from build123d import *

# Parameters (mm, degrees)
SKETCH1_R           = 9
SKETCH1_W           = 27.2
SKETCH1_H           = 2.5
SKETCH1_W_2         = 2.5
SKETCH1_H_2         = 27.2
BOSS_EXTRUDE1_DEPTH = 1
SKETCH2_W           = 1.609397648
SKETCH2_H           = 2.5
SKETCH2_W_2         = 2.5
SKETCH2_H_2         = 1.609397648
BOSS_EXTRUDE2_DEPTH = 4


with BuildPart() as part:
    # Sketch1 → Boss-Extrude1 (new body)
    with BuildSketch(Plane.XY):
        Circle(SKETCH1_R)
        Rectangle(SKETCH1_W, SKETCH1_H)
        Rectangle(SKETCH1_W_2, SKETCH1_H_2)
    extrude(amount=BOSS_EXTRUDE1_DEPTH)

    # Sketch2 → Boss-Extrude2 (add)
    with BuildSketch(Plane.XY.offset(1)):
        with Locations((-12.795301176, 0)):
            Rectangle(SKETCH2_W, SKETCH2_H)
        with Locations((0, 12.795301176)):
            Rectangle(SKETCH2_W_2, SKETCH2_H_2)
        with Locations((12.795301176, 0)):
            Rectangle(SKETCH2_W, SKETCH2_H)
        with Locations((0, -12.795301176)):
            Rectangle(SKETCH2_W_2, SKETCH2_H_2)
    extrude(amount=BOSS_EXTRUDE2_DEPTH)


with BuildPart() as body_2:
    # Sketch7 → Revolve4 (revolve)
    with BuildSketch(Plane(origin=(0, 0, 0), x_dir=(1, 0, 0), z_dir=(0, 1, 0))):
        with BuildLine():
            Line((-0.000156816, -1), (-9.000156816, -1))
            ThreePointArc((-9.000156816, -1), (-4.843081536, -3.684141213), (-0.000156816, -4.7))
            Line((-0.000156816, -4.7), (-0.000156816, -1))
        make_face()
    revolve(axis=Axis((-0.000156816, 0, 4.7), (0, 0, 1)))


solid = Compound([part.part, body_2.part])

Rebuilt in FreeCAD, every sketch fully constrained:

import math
import FreeCAD as App
import Part
import Sketcher
from FreeCAD import Vector
Q = App.Units.Quantity


def add_polygon(sketch, points):
    """Adds a closed chain of lines whose ends are joined by coincident constraints."""
    first, n = sketch.GeometryCount, len(points)
    for a, b in zip(points, points[1:] + points[:1]):
        sketch.addGeometry(Part.LineSegment(App.Vector(*a, 0), App.Vector(*b, 0)), False)
    for i in range(n):
        sketch.addConstraint(Sketcher.Constraint("Coincident", first + i, 2, first + (i + 1) % n, 1))

doc = App.newDocument("Part")
body = doc.addObject("PartDesign::Body", "Body")

# Sketch on XY plane
sketch1 = body.newObject("Sketcher::SketchObject", "Sketch")
sketch1.AttachmentSupport = (doc.getObject("XY_Plane"), [""])
sketch1.MapMode = "FlatFace"
sketch1.addGeometry([
    Part.ArcOfCircle(Part.Circle(Vector(0, 0, 0), Vector(0, 0, 1), 9), math.radians(-82), math.radians(-8)),  # 0
    Part.LineSegment(Vector(8.9, -1.2, 0), Vector(13.6, -1.2, 0)),  # 1
    Part.LineSegment(Vector(13.6, -1.2, 0), Vector(13.6, 1.2, 0)),  # 2
    Part.LineSegment(Vector(13.6, 1.2, 0), Vector(8.9, 1.2, 0)),  # 3
    Part.ArcOfCircle(Part.Circle(Vector(0, 0, 0), Vector(0, 0, 1), 9), math.radians(8), math.radians(82)),  # 4
    Part.LineSegment(Vector(1.2, 8.9, 0), Vector(1.2, 13.6, 0)),  # 5
    Part.LineSegment(Vector(1.2, 13.6, 0), Vector(-1.2, 13.6, 0)),  # 6
    Part.LineSegment(Vector(-1.2, 13.6, 0), Vector(-1.2, 8.9, 0)),  # 7
    Part.ArcOfCircle(Part.Circle(Vector(0, 0, 0), Vector(0, 0, 1), 9), math.radians(98), math.radians(172)),  # 8
    Part.LineSegment(Vector(-8.9, 1.2, 0), Vector(-13.6, 1.2, 0)),  # 9
    Part.LineSegment(Vector(-13.6, 1.2, 0), Vector(-13.6, -1.2, 0)),  # 10
    Part.LineSegment(Vector(-13.6, -1.2, 0), Vector(-8.9, -1.2, 0)),  # 11
    Part.ArcOfCircle(Part.Circle(Vector(0, 0, 0), Vector(0, 0, 1), 9), math.radians(-172), math.radians(-98)),  # 12
    Part.LineSegment(Vector(-1.2, -8.9, 0), Vector(-1.2, -13.6, 0)),  # 13
    Part.LineSegment(Vector(-1.2, -13.6, 0), Vector(1.2, -13.6, 0)),  # 14
    Part.LineSegment(Vector(1.2, -13.6, 0), Vector(1.2, -8.9, 0)),  # 15
], False)
sketch1.addConstraint([
    Sketcher.Constraint("Coincident", 0, 2, 1, 1),
    Sketcher.Constraint("Coincident", 1, 2, 2, 1),
    Sketcher.Constraint("Coincident", 2, 2, 3, 1),
    Sketcher.Constraint("Coincident", 3, 2, 4, 1),
    Sketcher.Constraint("Coincident", 4, 2, 5, 1),
    Sketcher.Constraint("Coincident", 5, 2, 6, 1),
    Sketcher.Constraint("Coincident", 6, 2, 7, 1),
    Sketcher.Constraint("Coincident", 7, 2, 8, 1),
    Sketcher.Constraint("Coincident", 8, 2, 9, 1),
    Sketcher.Constraint("Coincident", 9, 2, 10, 1),
    Sketcher.Constraint("Coincident", 10, 2, 11, 1),
    Sketcher.Constraint("Coincident", 11, 2, 12, 1),
    Sketcher.Constraint("Coincident", 12, 2, 13, 1),
    Sketcher.Constraint("Coincident", 13, 2, 14, 1),
    Sketcher.Constraint("Coincident", 14, 2, 15, 1),
    Sketcher.Constraint("Coincident", 15, 2, 0, 1),
    Sketcher.Constraint("Horizontal", 1),
    Sketcher.Constraint("Vertical", 2),
    Sketcher.Constraint("Horizontal", 3),
    Sketcher.Constraint("Vertical", 5),
    Sketcher.Constraint("Horizontal", 6),
    Sketcher.Constraint("Vertical", 7),
    Sketcher.Constraint("Horizontal", 9),
    Sketcher.Constraint("Vertical", 10),
    Sketcher.Constraint("Horizontal", 11),
    Sketcher.Constraint("Vertical", 13),
    Sketcher.Constraint("Horizontal", 14),
    Sketcher.Constraint("Vertical", 15),
    Sketcher.Constraint("Coincident", 0, 3, -1, 1),
    Sketcher.Constraint("Coincident", 4, 3, -1, 1),
    Sketcher.Constraint("Coincident", 8, 3, -1, 1),
    Sketcher.Constraint("Coincident", 12, 3, -1, 1),
    Sketcher.Constraint("Equal", 0, 4),
    Sketcher.Constraint("Equal", 4, 8),
    Sketcher.Constraint("Equal", 8, 12),
    Sketcher.Constraint("Symmetric", 1, 2, 9, 2, -1, 1),
    Sketcher.Constraint("Symmetric", 5, 2, 13, 2, -1, 1),
    Sketcher.Constraint("Horizontal", 4, 2, 7, 2),
    Sketcher.Constraint("Horizontal", 3, 2, 8, 2),
    Sketcher.Constraint("Horizontal", 1, 2, 10, 2),
    Sketcher.Constraint("Horizontal", 12, 2, 15, 2),
    Sketcher.Constraint("Equal", 14, 2),
    Sketcher.Constraint("Equal", 11, 5),
    Sketcher.Constraint("Radius", 0, Q("9 mm")),
    Sketcher.Constraint("DistanceX", 6, 2, 6, 1, Q("2.5 mm")),
    Sketcher.Constraint("DistanceX", -1, 1, 1, 2, Q("13.6 mm")),
])
pad1 = body.newObject("PartDesign::Pad", "Pad")
pad1.Profile = sketch1
pad1.Length = 1

# Sketch on XY plane
sketch2 = body.newObject("Sketcher::SketchObject", "Sketch001")
sketch2.AttachmentSupport = (doc.getObject("XY_Plane"), [""])
sketch2.MapMode = "FlatFace"
sketch2.AttachmentOffset = App.Placement(Vector(0, 0, 1), App.Rotation())
add_polygon(sketch2, [(-13.6, 1.2), (-13.6, -1.2), (-12, -1.2), (-12, 1.2)])  # lines 0-3
add_polygon(sketch2, [(-1.2, 13.6), (-1.2, 12), (1.2, 12), (1.2, 13.6)])  # lines 4-7
add_polygon(sketch2, [(12, 1.2), (12, -1.2), (13.6, -1.2), (13.6, 1.2)])  # lines 8-11
add_polygon(sketch2, [(-1.2, -12), (-1.2, -13.6), (1.2, -13.6), (1.2, -12)])  # lines 12-15
sketch2.addConstraint([
    Sketcher.Constraint("Vertical", 0),
    Sketcher.Constraint("Horizontal", 1),
    Sketcher.Constraint("Vertical", 2),
    Sketcher.Constraint("Horizontal", 3),
    Sketcher.Constraint("Vertical", 4),
    Sketcher.Constraint("Horizontal", 5),
    Sketcher.Constraint("Vertical", 6),
    Sketcher.Constraint("Horizontal", 7),
    Sketcher.Constraint("Vertical", 8),
    Sketcher.Constraint("Horizontal", 9),
    Sketcher.Constraint("Vertical", 10),
    Sketcher.Constraint("Horizontal", 11),
    Sketcher.Constraint("Vertical", 12),
    Sketcher.Constraint("Horizontal", 13),
    Sketcher.Constraint("Vertical", 14),
    Sketcher.Constraint("Horizontal", 15),
    Sketcher.Constraint("Symmetric", 2, 2, 8, 2, -1, 1),
    Sketcher.Constraint("Symmetric", 0, 2, 10, 2, -1, 1),
    Sketcher.Constraint("Symmetric", 6, 2, 12, 2, -1, 1),
    Sketcher.Constraint("Symmetric", 4, 2, 14, 2, -1, 1),
    Sketcher.Constraint("Horizontal", 1, 2, 8, 2),
    Sketcher.Constraint("Vertical", 7, 2, 12, 2),
    Sketcher.Constraint("Equal", 15, 0),
    Sketcher.Constraint("Equal", 11, 4),
    Sketcher.Constraint("DistanceX", 5, 1, 5, 2, Q("2.5 mm")),
    Sketcher.Constraint("DistanceX", 0, 2, -1, 1, Q("13.6 mm")),
    Sketcher.Constraint("DistanceY", -1, 1, 6, 2, Q("13.6 mm")),
    Sketcher.Constraint("DistanceX", 1, 1, 1, 2, Q("1.609398 mm")),
])
pad2 = body.newObject("PartDesign::Pad", "Pad001")
pad2.Profile = sketch2
pad2.Length = 4
body2 = doc.addObject("PartDesign::Body", "Body001")

# Sketch on XZ plane
sketch3 = body2.newObject("Sketcher::SketchObject", "Sketch002")
sketch3.AttachmentSupport = (doc.getObject("XZ_Plane001"), [""])
sketch3.MapMode = "FlatFace"
sketch3.addGeometry([
    Part.LineSegment(Vector(0, 1, 0), Vector(-9, 1, 0)),
    Part.ArcOfCircle(Part.Circle(Vector(0.3, -8.9, 0), Vector(0, 0, 1), 13.6), math.radians(91), math.radians(133)),
    Part.LineSegment(Vector(0, 4.7, 0), Vector(0, 1, 0)),
], False)
sketch3.addGeometry(Part.LineSegment(Vector(0, -8.9, 0), Vector(0, 4.7, 0)), True)  # axis
sketch3.addConstraint([
    Sketcher.Constraint("Coincident", 0, 2, 1, 2),
    Sketcher.Constraint("Coincident", 1, 1, 2, 1),
    Sketcher.Constraint("Coincident", 2, 2, 0, 1),
    Sketcher.Constraint("Horizontal", 0),
    Sketcher.Constraint("Vertical", 2),
    Sketcher.Constraint("Vertical", 3),
    Sketcher.Constraint("Coincident", 3, 2, 1, 1),
    Sketcher.Constraint("Horizontal", 1, 3, 3, 1),
    Sketcher.Constraint("DistanceX", 0, 2, 0, 1, Q("9 mm")),
    Sketcher.Constraint("DistanceY", 2, 2, 2, 1, Q("3.7 mm")),
    Sketcher.Constraint("DistanceY", -1, 1, 0, 2, Q("1 mm")),
    Sketcher.Constraint("Radius", 1, Q("13.574904 mm")),
    Sketcher.Constraint("DistanceX", -1, 1, 1, 3, Q("0.318543 mm")),
])
revolution = body2.newObject("PartDesign::Revolution", "Revolution")
revolution.Profile = sketch3
revolution.ReferenceAxis = (sketch3, ["Axis0"])
revolution.Angle = 360

doc.recompute()
